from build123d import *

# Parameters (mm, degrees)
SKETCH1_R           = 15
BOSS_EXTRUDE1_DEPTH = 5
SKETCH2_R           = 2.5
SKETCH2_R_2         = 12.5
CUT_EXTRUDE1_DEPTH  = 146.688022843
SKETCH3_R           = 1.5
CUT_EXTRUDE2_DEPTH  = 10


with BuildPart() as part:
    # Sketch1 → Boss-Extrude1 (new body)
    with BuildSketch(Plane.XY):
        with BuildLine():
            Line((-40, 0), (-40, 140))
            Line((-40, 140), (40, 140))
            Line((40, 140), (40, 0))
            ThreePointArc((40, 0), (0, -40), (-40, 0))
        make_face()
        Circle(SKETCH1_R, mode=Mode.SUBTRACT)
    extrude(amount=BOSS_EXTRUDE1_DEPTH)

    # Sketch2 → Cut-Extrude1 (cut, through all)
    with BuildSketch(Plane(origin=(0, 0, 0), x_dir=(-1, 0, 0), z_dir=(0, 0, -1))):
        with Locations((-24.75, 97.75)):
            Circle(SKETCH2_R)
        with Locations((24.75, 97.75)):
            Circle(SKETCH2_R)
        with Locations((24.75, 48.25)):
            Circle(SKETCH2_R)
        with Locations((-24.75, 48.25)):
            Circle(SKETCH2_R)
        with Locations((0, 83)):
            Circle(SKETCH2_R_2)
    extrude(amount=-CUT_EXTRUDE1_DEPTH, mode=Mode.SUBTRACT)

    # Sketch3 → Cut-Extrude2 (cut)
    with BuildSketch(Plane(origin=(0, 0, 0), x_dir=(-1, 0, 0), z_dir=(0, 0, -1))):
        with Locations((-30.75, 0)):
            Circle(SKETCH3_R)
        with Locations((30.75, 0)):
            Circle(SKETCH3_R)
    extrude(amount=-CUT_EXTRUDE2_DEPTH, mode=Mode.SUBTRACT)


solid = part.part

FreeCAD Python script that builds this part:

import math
import FreeCAD as App
import Part
import Sketcher

V = App.Vector
Q = App.Units.Quantity

doc = App.newDocument("Part")
params = doc.addObject("Spreadsheet::Sheet", "Params")
for row, (alias, value) in enumerate([
    ("sketch1_diameter", "30 mm"),
    ("sketch1_radius", "40 mm"),
    ("sketch1_height", "140 mm"),
    ("pad1_length", "5 mm"),
    ("sketch2_diameter", "5 mm"),
    ("sketch2_diameter2", "25 mm"),
    ("sketch3_diameter", "3 mm"),
    ("pocket2_length", "10 mm"),
], start=1):
    params.set(f"A{row}", alias)
    params.set(f"B{row}", "=" + value)
    params.setAlias(f"B{row}", alias)

body = doc.addObject("PartDesign::Body", "Body")

sketch1 = doc.addObject("Sketcher::SketchObject", "Sketch")
body.addObject(sketch1)
sketch1.AttachmentSupport = (doc.XY_Plane, [""])
sketch1.MapMode = "FlatFace"
sketch1.addGeometry([
    Part.LineSegment(V(-40, 140, 0), V(-40, 0, 0)),
    Part.ArcOfCircle(Part.Circle(V(0, 0, 0), V(0, 0, 1), 40), math.radians(180), math.radians(360)),
    Part.LineSegment(V(40, 0, 0), V(40, 140, 0)),
    Part.LineSegment(V(40, 140, 0), V(-40, 140, 0)),
    Part.Circle(V(0, 0, 0), V(0, 0, 1), 15),
], False)
sketch1.addConstraint([
    Sketcher.Constraint("Tangent", 0, 2, 1, 1),
    Sketcher.Constraint("Tangent", 1, 2, 2, 1),
    Sketcher.Constraint("Coincident", 2, 2, 3, 1),
    Sketcher.Constraint("Coincident", 3, 2, 0, 1),
    Sketcher.Constraint("Vertical", 0),
    Sketcher.Constraint("Vertical", 2),
    Sketcher.Constraint("Horizontal", 3),
    Sketcher.Constraint("Coincident", 1, 3, -1, 1),
    Sketcher.Constraint("Coincident", 4, 3, -1, 1),
    Sketcher.Constraint("Diameter", 4, Q("30 mm")),
    Sketcher.Constraint("Radius", 1, Q("40 mm")),
    Sketcher.Constraint("DistanceY", 0, 2, 0, 1, Q("140 mm")),
])
sketch1.setExpression("Constraints[9]", "Params.sketch1_diameter")
sketch1.setExpression("Constraints[10]", "Params.sketch1_radius")
sketch1.setExpression("Constraints[11]", "Params.sketch1_height")
pad1 = doc.addObject("PartDesign::Pad", "Pad")
body.addObject(pad1)
pad1.Profile = sketch1
pad1.setExpression("Length", "Params.pad1_length")

sketch2 = doc.addObject("Sketcher::SketchObject", "Sketch001")
body.addObject(sketch2)
sketch2.AttachmentSupport = (doc.XY_Plane, [""])
sketch2.MapMode = "FlatFace"
sketch2.addGeometry([
    Part.Circle(V(24.8, 97.8, 0), V(0, 0, 1), 2.5),
    Part.Circle(V(-24.8, 97.8, 0), V(0, 0, 1), 2.5),
    Part.Circle(V(-24.8, 48.2, 0), V(0, 0, 1), 2.5),
    Part.Circle(V(24.8, 48.2, 0), V(0, 0, 1), 2.5),
    Part.Circle(V(0, 83, 0), V(0, 0, 1), 12.5),
], False)
sketch2.addConstraint([
    Sketcher.Constraint("Equal", 0, 1),
    Sketcher.Constraint("Equal", 1, 2),
    Sketcher.Constraint("Equal", 2, 3),
    Sketcher.Constraint("Symmetric", 0, 3, 1, 3, -2),
    Sketcher.Constraint("Symmetric", 2, 3, 3, 3, -2),
    Sketcher.Constraint("PointOnObject", 4, 3, -2),
    Sketcher.Constraint("Vertical", 1, 3, 2, 3),
    Sketcher.Constraint("Diameter", 0, Q("5 mm")),
    Sketcher.Constraint("Diameter", 4, Q("25 mm")),
    Sketcher.Constraint("DistanceY", -1, 1, 4, 3, Q("83 mm")),
    Sketcher.Constraint("DistanceX", 1, 3, 0, 3, Q("49.5 mm")),
    Sketcher.Constraint("DistanceY", 2, 3, 1, 3, Q("49.5 mm")),
    Sketcher.Constraint("DistanceY", -1, 1, 0, 3, Q("97.75 mm")),
])
sketch2.setExpression("Constraints[7]", "Params.sketch2_diameter")
sketch2.setExpression("Constraints[8]", "Params.sketch2_diameter2")
pocket1 = doc.addObject("PartDesign::Pocket", "Pocket")
body.addObject(pocket1)
pocket1.Profile = sketch2
pocket1.Type = "ThroughAll"
pocket1.Reversed = True

sketch3 = doc.addObject("Sketcher::SketchObject", "Sketch002")
body.addObject(sketch3)
sketch3.AttachmentSupport = (doc.XY_Plane, [""])
sketch3.MapMode = "FlatFace"
sketch3.addGeometry([
    Part.Circle(V(30.8, 0, 0), V(0, 0, 1), 1.5),
    Part.Circle(V(-30.8, 0, 0), V(0, 0, 1), 1.5),
], False)
sketch3.addConstraint([
    Sketcher.Constraint("Equal", 0, 1),
    Sketcher.Constraint("Symmetric", 0, 3, 1, 3, -1, 1),
    Sketcher.Constraint("PointOnObject", 0, 3, -1),
    Sketcher.Constraint("Diameter", 0, Q("3 mm")),
    Sketcher.Constraint("DistanceX", 1, 3, 0, 3, Q("61.5 mm")),
])
sketch3.setExpression("Constraints[3]", "Params.sketch3_diameter")
pocket2 = doc.addObject("PartDesign::Pocket", "Pocket001")
body.addObject(pocket2)
pocket2.Profile = sketch3
pocket2.setExpression("Length", "Params.pocket2_length")
pocket2.Reversed = True

doc.recompute()
